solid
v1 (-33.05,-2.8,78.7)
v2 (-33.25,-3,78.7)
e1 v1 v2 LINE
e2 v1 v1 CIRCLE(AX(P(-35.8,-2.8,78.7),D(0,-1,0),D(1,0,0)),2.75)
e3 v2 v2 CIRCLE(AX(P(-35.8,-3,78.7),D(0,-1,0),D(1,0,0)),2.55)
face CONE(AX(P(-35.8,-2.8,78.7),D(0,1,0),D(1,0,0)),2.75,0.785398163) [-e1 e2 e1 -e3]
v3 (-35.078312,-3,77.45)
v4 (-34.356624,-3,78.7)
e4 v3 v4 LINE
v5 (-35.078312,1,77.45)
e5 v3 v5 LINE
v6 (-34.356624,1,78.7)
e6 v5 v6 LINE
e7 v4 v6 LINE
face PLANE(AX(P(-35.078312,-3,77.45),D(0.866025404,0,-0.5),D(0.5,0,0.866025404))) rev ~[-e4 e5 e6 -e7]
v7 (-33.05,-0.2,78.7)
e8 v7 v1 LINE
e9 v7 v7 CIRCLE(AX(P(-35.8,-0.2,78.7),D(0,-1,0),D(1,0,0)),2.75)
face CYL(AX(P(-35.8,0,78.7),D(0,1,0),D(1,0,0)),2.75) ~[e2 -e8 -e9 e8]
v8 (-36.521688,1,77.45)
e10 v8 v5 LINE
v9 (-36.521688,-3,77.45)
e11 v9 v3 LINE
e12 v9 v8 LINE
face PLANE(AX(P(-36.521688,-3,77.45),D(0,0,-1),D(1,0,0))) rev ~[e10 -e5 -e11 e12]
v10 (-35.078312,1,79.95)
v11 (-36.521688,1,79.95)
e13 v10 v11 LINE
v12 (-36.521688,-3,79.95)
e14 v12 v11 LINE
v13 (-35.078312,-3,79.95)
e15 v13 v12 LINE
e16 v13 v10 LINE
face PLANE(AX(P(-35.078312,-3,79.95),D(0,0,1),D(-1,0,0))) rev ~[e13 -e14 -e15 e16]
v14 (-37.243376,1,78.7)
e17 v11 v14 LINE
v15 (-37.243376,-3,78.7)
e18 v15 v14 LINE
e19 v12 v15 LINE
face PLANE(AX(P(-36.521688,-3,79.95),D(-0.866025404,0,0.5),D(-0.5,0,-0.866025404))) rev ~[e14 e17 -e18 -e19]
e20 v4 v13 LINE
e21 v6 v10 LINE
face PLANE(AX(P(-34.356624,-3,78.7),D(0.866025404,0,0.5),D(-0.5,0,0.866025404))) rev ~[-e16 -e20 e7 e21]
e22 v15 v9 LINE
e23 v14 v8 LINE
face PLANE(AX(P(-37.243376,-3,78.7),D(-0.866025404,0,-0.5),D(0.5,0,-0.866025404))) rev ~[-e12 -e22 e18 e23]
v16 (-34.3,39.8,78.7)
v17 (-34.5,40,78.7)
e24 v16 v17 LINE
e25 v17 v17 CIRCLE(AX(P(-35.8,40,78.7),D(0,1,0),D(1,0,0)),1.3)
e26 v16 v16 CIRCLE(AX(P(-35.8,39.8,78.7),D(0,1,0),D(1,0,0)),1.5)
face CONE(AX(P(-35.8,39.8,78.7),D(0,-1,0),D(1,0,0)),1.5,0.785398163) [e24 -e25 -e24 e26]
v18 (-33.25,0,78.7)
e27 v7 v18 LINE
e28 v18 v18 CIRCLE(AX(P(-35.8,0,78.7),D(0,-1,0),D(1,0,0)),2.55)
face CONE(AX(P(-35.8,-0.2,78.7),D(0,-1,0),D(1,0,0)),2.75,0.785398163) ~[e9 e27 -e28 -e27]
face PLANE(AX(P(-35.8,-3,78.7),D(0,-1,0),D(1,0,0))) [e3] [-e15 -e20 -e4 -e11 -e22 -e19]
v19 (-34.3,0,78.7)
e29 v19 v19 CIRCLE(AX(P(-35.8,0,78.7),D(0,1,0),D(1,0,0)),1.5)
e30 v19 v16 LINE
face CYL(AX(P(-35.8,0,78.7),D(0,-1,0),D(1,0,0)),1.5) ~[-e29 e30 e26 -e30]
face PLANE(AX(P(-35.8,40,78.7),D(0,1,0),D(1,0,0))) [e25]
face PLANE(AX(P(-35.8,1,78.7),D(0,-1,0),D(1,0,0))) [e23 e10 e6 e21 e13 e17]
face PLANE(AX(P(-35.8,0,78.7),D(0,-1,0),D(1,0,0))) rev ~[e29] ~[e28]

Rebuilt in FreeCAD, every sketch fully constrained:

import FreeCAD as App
import Part
import Sketcher
from FreeCAD import Vector
Q = App.Units.Quantity


def edges_at(feature, points):
    """Names of the edges that pass closest to the given points."""
    edges = feature.Shape.Edges
    near = lambda p: min(range(len(edges)), key=lambda i: edges[i].distToShape(Part.Vertex(*p))[0])
    return sorted({f"Edge{near(p) + 1}" for p in points})


def add_polygon(sketch, points):
    """Adds a closed chain of lines whose ends are joined by coincident constraints."""
    first, n = sketch.GeometryCount, len(points)
    for a, b in zip(points, points[1:] + points[:1]):
        sketch.addGeometry(Part.LineSegment(App.Vector(*a, 0), App.Vector(*b, 0)), False)
    for i in range(n):
        sketch.addConstraint(Sketcher.Constraint("Coincident", first + i, 2, first + (i + 1) % n, 1))

doc = App.newDocument("Part")
body = doc.addObject("PartDesign::Body", "Body")

sketch1 = doc.addObject("Sketcher::SketchObject", "Sketch")
body.addObject(sketch1)
sketch1.AttachmentSupport = (doc.XY_Plane, [""])
sketch1.MapMode = "FlatFace"
sketch1.addGeometry(Part.Circle(Vector(0, 0, 0), Vector(0, 0, 1), 2.8), False)
sketch1.addConstraint(Sketcher.Constraint("Coincident", 0, 3, -1, 1))
sketch1.addConstraint(Sketcher.Constraint("Diameter", 0, 5.5))
pad1 = doc.addObject("PartDesign::Pad", "Pad")
body.addObject(pad1)
pad1.Profile = sketch1
pad1.Length = 3

sketch2 = doc.addObject("Sketcher::SketchObject", "Sketch001")
body.addObject(sketch2)
sketch2.AttachmentSupport = (doc.XY_Plane, [""])
sketch2.MapMode = "FlatFace"
sketch2.addGeometry(Part.Circle(Vector(0, 0, 0), Vector(0, 0, 1), 1.5), False)
sketch2.addConstraint(Sketcher.Constraint("Coincident", 0, 3, -1, 1))
sketch2.addConstraint(Sketcher.Constraint("Diameter", 0, 3.0))
pad2 = doc.addObject("PartDesign::Pad", "Pad001")
body.addObject(pad2)
pad2.Profile = sketch2
pad2.Length = 40
pad2.Reversed = True

sketch3 = doc.addObject("Sketcher::SketchObject", "Sketch002")
body.addObject(sketch3)
sketch3.AttachmentSupport = (doc.XY_Plane, [""])
sketch3.MapMode = "FlatFace"
sketch3.AttachmentOffset = App.Placement(Vector(0, 0, 3), App.Rotation())
add_polygon(sketch3, [(0.7, -1.2), (1.4, 0), (0.7, 1.2), (-0.7, 1.2), (-1.4, 0), (-0.7, -1.2)])
sketch3.addConstraint(Sketcher.Constraint("Horizontal", 2))
sketch3.addConstraint(Sketcher.Constraint("Horizontal", 5))
sketch3.addConstraint(Sketcher.Constraint("Symmetric", 0, 2, 3, 2, -1, 1))
sketch3.addConstraint(Sketcher.Constraint("Symmetric", 1, 2, 4, 2, -1, 1))
sketch3.addConstraint(Sketcher.Constraint("PointOnObject", 0, 2, -1))
sketch3.addConstraint(Sketcher.Constraint("Parallel", 0, 3))
sketch3.addConstraint(Sketcher.Constraint("Vertical", 2, 2, 4, 2))
sketch3.addConstraint(Sketcher.Constraint("Angle", 0, Q("60 deg")))
sketch3.addConstraint(Sketcher.Constraint("DistanceY", 4, 2, 2, 2, 2.5))
sketch3.addConstraint(Sketcher.Constraint("DistanceX", 2, 2, 2, 1, 1.443376))
pocket1 = doc.addObject("PartDesign::Pocket", "Pocket")
body.addObject(pocket1)
pocket1.Profile = sketch3
pocket1.Length = 4
doc.recompute()

chamfer = doc.addObject("PartDesign::Chamfer", "Chamfer")
body.addObject(chamfer)
chamfer.Base = (pocket1, edges_at(pocket1, [(-1.5, 0, -40), (-2.75, 0, 0), (-2.75, 0, 3)]))
chamfer.Size = 0.2
body2 = doc.addObject("PartDesign::Body", "Body001")
doc.recompute()

body.Placement = App.Placement(Vector(-35.8, 0, 78.7), App.Rotation(Vector(1, 0, 0), 90))
boolean = doc.addObject("PartDesign::Boolean", "Boolean")
body2.addObject(boolean)
boolean.Type = "Fuse"
boolean.addObjects([body])

doc.recompute()
